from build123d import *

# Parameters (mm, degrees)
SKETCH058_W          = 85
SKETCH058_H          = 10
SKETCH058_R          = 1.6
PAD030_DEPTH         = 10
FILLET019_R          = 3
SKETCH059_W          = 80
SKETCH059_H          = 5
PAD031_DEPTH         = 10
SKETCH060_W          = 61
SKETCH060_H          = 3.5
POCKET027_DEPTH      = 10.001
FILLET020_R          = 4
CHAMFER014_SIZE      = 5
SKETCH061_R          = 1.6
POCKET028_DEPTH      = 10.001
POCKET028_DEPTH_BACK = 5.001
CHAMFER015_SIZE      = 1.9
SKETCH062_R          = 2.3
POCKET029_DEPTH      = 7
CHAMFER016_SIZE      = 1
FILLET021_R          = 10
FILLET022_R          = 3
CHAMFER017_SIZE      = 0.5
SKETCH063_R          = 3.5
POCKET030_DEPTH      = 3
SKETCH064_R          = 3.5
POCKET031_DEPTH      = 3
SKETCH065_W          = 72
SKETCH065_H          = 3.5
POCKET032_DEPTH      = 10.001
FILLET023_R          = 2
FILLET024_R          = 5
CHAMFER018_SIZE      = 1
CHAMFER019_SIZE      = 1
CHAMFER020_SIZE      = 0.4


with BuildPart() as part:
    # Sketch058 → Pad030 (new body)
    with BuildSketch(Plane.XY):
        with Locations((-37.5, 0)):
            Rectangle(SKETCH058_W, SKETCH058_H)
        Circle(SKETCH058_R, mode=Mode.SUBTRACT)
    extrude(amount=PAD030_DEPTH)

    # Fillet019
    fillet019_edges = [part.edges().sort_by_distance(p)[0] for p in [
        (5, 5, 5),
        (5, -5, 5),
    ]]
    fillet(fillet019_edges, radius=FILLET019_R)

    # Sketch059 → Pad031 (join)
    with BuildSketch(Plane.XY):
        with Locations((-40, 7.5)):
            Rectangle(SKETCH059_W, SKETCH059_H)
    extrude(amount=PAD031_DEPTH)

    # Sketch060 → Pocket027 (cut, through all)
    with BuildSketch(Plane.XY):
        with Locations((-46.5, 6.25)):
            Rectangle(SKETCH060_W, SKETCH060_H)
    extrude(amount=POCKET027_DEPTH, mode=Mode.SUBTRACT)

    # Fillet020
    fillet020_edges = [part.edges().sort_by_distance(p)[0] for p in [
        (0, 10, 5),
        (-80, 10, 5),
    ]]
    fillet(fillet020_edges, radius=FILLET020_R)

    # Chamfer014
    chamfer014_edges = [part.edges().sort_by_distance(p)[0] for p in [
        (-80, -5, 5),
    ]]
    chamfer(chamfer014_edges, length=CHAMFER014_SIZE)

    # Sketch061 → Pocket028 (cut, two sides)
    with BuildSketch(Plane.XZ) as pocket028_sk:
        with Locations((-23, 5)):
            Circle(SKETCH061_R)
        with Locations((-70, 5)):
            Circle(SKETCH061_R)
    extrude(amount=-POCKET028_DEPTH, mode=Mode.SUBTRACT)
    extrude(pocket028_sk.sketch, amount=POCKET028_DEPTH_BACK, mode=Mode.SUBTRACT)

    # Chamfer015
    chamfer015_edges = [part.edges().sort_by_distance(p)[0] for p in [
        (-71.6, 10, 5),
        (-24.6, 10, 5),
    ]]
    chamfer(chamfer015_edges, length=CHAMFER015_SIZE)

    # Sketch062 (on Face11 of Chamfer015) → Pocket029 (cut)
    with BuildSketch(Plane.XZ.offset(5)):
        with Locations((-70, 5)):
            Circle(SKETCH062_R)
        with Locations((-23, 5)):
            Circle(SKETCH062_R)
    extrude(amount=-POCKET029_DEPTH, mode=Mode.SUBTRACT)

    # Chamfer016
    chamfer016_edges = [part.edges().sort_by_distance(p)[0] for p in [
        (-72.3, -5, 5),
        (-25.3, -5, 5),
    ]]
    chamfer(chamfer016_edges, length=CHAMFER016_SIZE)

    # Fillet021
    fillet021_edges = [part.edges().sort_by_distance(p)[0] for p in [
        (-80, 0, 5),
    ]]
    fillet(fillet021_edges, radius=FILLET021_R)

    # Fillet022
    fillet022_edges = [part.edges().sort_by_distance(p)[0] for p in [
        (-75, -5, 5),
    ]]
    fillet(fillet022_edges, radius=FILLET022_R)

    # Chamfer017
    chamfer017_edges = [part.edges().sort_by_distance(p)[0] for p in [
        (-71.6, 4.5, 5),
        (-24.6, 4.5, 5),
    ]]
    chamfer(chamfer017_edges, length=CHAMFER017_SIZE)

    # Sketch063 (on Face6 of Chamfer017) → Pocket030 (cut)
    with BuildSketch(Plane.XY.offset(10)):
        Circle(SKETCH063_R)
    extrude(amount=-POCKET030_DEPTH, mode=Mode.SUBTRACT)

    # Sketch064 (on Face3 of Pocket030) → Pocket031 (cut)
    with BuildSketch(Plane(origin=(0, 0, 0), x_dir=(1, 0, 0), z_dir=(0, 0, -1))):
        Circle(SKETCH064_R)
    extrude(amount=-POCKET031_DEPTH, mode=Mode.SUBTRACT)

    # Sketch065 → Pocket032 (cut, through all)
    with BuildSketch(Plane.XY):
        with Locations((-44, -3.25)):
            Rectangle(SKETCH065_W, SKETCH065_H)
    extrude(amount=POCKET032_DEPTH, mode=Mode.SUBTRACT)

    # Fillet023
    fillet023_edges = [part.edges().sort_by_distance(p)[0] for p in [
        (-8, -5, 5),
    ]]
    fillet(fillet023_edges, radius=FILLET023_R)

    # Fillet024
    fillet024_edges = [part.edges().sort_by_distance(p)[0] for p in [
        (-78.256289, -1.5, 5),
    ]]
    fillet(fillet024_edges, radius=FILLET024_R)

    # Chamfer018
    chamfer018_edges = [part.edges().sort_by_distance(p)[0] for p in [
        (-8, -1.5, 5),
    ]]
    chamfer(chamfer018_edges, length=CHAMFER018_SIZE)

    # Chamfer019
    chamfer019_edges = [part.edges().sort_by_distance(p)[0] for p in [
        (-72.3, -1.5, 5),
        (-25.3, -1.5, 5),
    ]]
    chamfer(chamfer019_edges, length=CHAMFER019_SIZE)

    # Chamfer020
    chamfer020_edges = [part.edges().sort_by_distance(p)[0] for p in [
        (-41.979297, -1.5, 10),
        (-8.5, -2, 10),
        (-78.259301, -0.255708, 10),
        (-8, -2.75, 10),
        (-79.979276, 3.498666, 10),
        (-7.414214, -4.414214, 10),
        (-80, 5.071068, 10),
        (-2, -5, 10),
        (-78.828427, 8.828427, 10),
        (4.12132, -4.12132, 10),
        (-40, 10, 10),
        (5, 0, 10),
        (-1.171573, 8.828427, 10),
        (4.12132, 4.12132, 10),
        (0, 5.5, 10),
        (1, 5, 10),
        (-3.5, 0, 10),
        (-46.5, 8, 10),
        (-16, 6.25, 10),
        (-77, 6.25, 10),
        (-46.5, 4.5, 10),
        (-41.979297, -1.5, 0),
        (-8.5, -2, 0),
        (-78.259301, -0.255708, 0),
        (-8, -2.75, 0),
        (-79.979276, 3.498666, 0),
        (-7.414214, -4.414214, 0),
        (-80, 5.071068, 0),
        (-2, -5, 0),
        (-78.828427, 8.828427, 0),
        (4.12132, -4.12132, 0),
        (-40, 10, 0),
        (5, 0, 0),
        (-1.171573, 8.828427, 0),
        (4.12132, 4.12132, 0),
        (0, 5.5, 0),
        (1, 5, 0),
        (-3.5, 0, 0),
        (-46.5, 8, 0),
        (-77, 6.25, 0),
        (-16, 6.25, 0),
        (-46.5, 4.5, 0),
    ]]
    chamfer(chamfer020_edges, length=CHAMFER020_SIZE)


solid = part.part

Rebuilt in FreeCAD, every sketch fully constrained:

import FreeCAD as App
import Part
import Sketcher
from FreeCAD import Vector


def edges_at(feature, points):
    """Names of the edges that pass closest to the given points."""
    edges = feature.Shape.Edges
    near = lambda p: min(range(len(edges)), key=lambda i: edges[i].distToShape(Part.Vertex(*p))[0])
    return sorted({f"Edge{near(p) + 1}" for p in points})


def add_polygon(sketch, points):
    """Adds a closed chain of lines whose ends are joined by coincident constraints."""
    first, n = sketch.GeometryCount, len(points)
    for a, b in zip(points, points[1:] + points[:1]):
        sketch.addGeometry(Part.LineSegment(App.Vector(*a, 0), App.Vector(*b, 0)), False)
    for i in range(n):
        sketch.addConstraint(Sketcher.Constraint("Coincident", first + i, 2, first + (i + 1) % n, 1))

doc = App.newDocument("Part")
body = doc.addObject("PartDesign::Body", "Body")

sketch1 = body.newObject("Sketcher::SketchObject", "Sketch")
sketch1.AttachmentSupport = (doc.getObject("XY_Plane"), [""])
sketch1.MapMode = "FlatFace"
add_polygon(sketch1, [(-80, 5), (-80, -5), (5, -5), (5, 5)])
sketch1.addGeometry(Part.Circle(Vector(0, 0, 0), Vector(0, 0, 1), 1.6), False)
sketch1.addConstraint(Sketcher.Constraint("Vertical", 0))
sketch1.addConstraint(Sketcher.Constraint("Horizontal", 1))
sketch1.addConstraint(Sketcher.Constraint("Vertical", 2))
sketch1.addConstraint(Sketcher.Constraint("Horizontal", 3))
sketch1.addConstraint(Sketcher.Constraint("Coincident", 4, 3, -1, 1))
sketch1.addConstraint(Sketcher.Constraint("Diameter", 4, 3.2))
sketch1.addConstraint(Sketcher.Constraint("DistanceX", 1, 1, 1, 2, 85.0))
sketch1.addConstraint(Sketcher.Constraint("DistanceY", 0, 2, 0, 1, 10.0))
sketch1.addConstraint(Sketcher.Constraint("DistanceX", 0, 2, -1, 1, 80.0))
sketch1.addConstraint(Sketcher.Constraint("DistanceY", 0, 2, -1, 1, 5.0))
pad1 = body.newObject("PartDesign::Pad", "Pad")
pad1.Profile = sketch1
pad1.Length = 10
doc.recompute()

fillet = body.newObject("PartDesign::Fillet", "Fillet")
fillet.Base = (pad1, edges_at(pad1, [(5, 5, 5), (5, -5, 5)]))
fillet.Radius = 3

sketch2 = body.newObject("Sketcher::SketchObject", "Sketch001")
sketch2.AttachmentSupport = (doc.getObject("XY_Plane"), [""])
sketch2.MapMode = "FlatFace"
add_polygon(sketch2, [(-80, 10), (-80, 5), (0, 5), (0, 10)])
sketch2.addConstraint(Sketcher.Constraint("Vertical", 0))
sketch2.addConstraint(Sketcher.Constraint("Horizontal", 1))
sketch2.addConstraint(Sketcher.Constraint("Vertical", 2))
sketch2.addConstraint(Sketcher.Constraint("Horizontal", 3))
sketch2.addConstraint(Sketcher.Constraint("PointOnObject", 1, 2, -2))
sketch2.addConstraint(Sketcher.Constraint("DistanceX", 1, 1, 1, 2, 80.0))
sketch2.addConstraint(Sketcher.Constraint("DistanceY", 0, 2, 0, 1, 5.0))
sketch2.addConstraint(Sketcher.Constraint("DistanceY", -1, 1, 0, 2, 5.0))
pad2 = body.newObject("PartDesign::Pad", "Pad001")
pad2.Profile = sketch2
pad2.Length = 10

sketch3 = body.newObject("Sketcher::SketchObject", "Sketch002")
sketch3.AttachmentSupport = (doc.getObject("XY_Plane"), [""])
sketch3.MapMode = "FlatFace"
add_polygon(sketch3, [(-77, 8), (-77, 4.5), (-16, 4.5), (-16, 8)])
sketch3.addConstraint(Sketcher.Constraint("Vertical", 0))
sketch3.addConstraint(Sketcher.Constraint("Horizontal", 1))
sketch3.addConstraint(Sketcher.Constraint("Vertical", 2))
sketch3.addConstraint(Sketcher.Constraint("Horizontal", 3))
sketch3.addConstraint(Sketcher.Constraint("DistanceX", 1, 1, 1, 2, 61.0))
sketch3.addConstraint(Sketcher.Constraint("DistanceY", 0, 2, 0, 1, 3.5))
sketch3.addConstraint(Sketcher.Constraint("DistanceX", 0, 2, -1, 1, 77.0))
sketch3.addConstraint(Sketcher.Constraint("DistanceY", -1, 1, 2, 2, 8.0))
pocket1 = body.newObject("PartDesign::Pocket", "Pocket")
pocket1.Profile = sketch3
pocket1.Type = "ThroughAll"
pocket1.Reversed = True
doc.recompute()

fillet2 = body.newObject("PartDesign::Fillet", "Fillet001")
fillet2.Base = (pocket1, edges_at(pocket1, [(0, 10, 5), (-80, 10, 5)]))
fillet2.Radius = 4
doc.recompute()

chamfer = body.newObject("PartDesign::Chamfer", "Chamfer")
chamfer.Base = (fillet2, edges_at(fillet2, [(-80, -5, 5)]))
chamfer.Size = 5

sketch4 = body.newObject("Sketcher::SketchObject", "Sketch003")
sketch4.AttachmentSupport = (doc.getObject("XZ_Plane"), [""])
sketch4.MapMode = "FlatFace"
sketch4.addGeometry(Part.Circle(Vector(-23, 5, 0), Vector(0, 0, 1), 1.6), False)
sketch4.addGeometry(Part.Circle(Vector(-70, 5, 0), Vector(0, 0, 1), 1.6), False)
sketch4.addConstraint(Sketcher.Constraint("Equal", 0, 1))
sketch4.addConstraint(Sketcher.Constraint("Horizontal", 0, 3, 1, 3))
sketch4.addConstraint(Sketcher.Constraint("Diameter", 0, 3.2))
sketch4.addConstraint(Sketcher.Constraint("DistanceX", 0, 3, -1, 1, 23.0))
sketch4.addConstraint(Sketcher.Constraint("DistanceY", -1, 1, 0, 3, 5.0))
sketch4.addConstraint(Sketcher.Constraint("DistanceX", 1, 3, -1, 1, 70.0))
pocket2 = body.newObject("PartDesign::Pocket", "Pocket001")
pocket2.Profile = sketch4
pocket2.Type = "ThroughAll"
pocket2.Midplane = True
doc.recompute()

chamfer2 = body.newObject("PartDesign::Chamfer", "Chamfer001")
chamfer2.Base = (pocket2, edges_at(pocket2, [(-71.6, 10, 5), (-24.6, 10, 5)]))
chamfer2.Size = 1.9

sketch5 = body.newObject("Sketcher::SketchObject", "Sketch004")
sketch5.AttachmentSupport = (doc.getObject("XZ_Plane"), [""])
sketch5.MapMode = "FlatFace"
sketch5.AttachmentOffset = App.Placement(Vector(0, 0, 5), App.Rotation())
sketch5.addGeometry(Part.Circle(Vector(-70, 5, 0), Vector(0, 0, 1), 2.3), False)
sketch5.addGeometry(Part.Circle(Vector(-23, 5, 0), Vector(0, 0, 1), 2.3), False)
sketch5.addConstraint(Sketcher.Constraint("Equal", 0, 1))
sketch5.addConstraint(Sketcher.Constraint("Horizontal", 0, 3, 1, 3))
sketch5.addConstraint(Sketcher.Constraint("Diameter", 0, 4.6))
sketch5.addConstraint(Sketcher.Constraint("DistanceX", 0, 3, -1, 1, 70.0))
sketch5.addConstraint(Sketcher.Constraint("DistanceY", -1, 1, 0, 3, 5.0))
sketch5.addConstraint(Sketcher.Constraint("DistanceX", 1, 3, -1, 1, 23.0))
pocket3 = body.newObject("PartDesign::Pocket", "Pocket002")
pocket3.Profile = sketch5
pocket3.Length = 7
doc.recompute()

chamfer3 = body.newObject("PartDesign::Chamfer", "Chamfer002")
chamfer3.Base = (pocket3, edges_at(pocket3, [(-72.3, -5, 5), (-25.3, -5, 5)]))
chamfer3.Size = 1
doc.recompute()

fillet3 = body.newObject("PartDesign::Fillet", "Fillet002")
fillet3.Base = (chamfer3, edges_at(chamfer3, [(-80, 0, 5)]))
fillet3.Radius = 10
doc.recompute()

fillet4 = body.newObject("PartDesign::Fillet", "Fillet003")
fillet4.Base = (fillet3, edges_at(fillet3, [(-75, -5, 5)]))
fillet4.Radius = 3
doc.recompute()

chamfer4 = body.newObject("PartDesign::Chamfer", "Chamfer003")
chamfer4.Base = (fillet4, edges_at(fillet4, [(-71.6, 4.5, 5), (-24.6, 4.5, 5)]))
chamfer4.Size = 0.5

sketch6 = body.newObject("Sketcher::SketchObject", "Sketch005")
sketch6.AttachmentSupport = (doc.getObject("XY_Plane"), [""])
sketch6.MapMode = "FlatFace"
sketch6.AttachmentOffset = App.Placement(Vector(0, 0, 10), App.Rotation())
sketch6.addGeometry(Part.Circle(Vector(0, 0, 0), Vector(0, 0, 1), 3.5), False)
sketch6.addConstraint(Sketcher.Constraint("Coincident", 0, 3, -1, 1))
sketch6.addConstraint(Sketcher.Constraint("Diameter", 0, 7.0))
pocket4 = body.newObject("PartDesign::Pocket", "Pocket003")
pocket4.Profile = sketch6
pocket4.Length = 3

sketch7 = body.newObject("Sketcher::SketchObject", "Sketch006")
sketch7.AttachmentSupport = (doc.getObject("XY_Plane"), [""])
sketch7.MapMode = "FlatFace"
sketch7.addGeometry(Part.Circle(Vector(0, 0, 0), Vector(0, 0, 1), 3.5), False)
sketch7.addConstraint(Sketcher.Constraint("Coincident", 0, 3, -1, 1))
sketch7.addConstraint(Sketcher.Constraint("Diameter", 0, 7.0))
pocket5 = body.newObject("PartDesign::Pocket", "Pocket004")
pocket5.Profile = sketch7
pocket5.Length = 3
pocket5.Reversed = True

sketch8 = body.newObject("Sketcher::SketchObject", "Sketch007")
sketch8.AttachmentSupport = (doc.getObject("XY_Plane"), [""])
sketch8.MapMode = "FlatFace"
add_polygon(sketch8, [(-80, -1.5), (-80, -5), (-8, -5), (-8, -1.5)])
sketch8.addConstraint(Sketcher.Constraint("Vertical", 0))
sketch8.addConstraint(Sketcher.Constraint("Horizontal", 1))
sketch8.addConstraint(Sketcher.Constraint("Vertical", 2))
sketch8.addConstraint(Sketcher.Constraint("Horizontal", 3))
sketch8.addConstraint(Sketcher.Constraint("DistanceX", 1, 1, 1, 2, 72.0))
sketch8.addConstraint(Sketcher.Constraint("DistanceY", 0, 2, 0, 1, 3.5))
sketch8.addConstraint(Sketcher.Constraint("DistanceX", 0, 2, -1, 1, 80.0))
sketch8.addConstraint(Sketcher.Constraint("DistanceY", 0, 2, -1, 1, 5.0))
pocket6 = body.newObject("PartDesign::Pocket", "Pocket005")
pocket6.Profile = sketch8
pocket6.Type = "ThroughAll"
pocket6.Reversed = True
doc.recompute()

fillet5 = body.newObject("PartDesign::Fillet", "Fillet004")
fillet5.Base = (pocket6, edges_at(pocket6, [(-8, -5, 5)]))
fillet5.Radius = 2
doc.recompute()

fillet6 = body.newObject("PartDesign::Fillet", "Fillet005")
fillet6.Base = (fillet5, edges_at(fillet5, [(-78.256, -1.5, 5)]))
fillet6.Radius = 5
doc.recompute()

chamfer5 = body.newObject("PartDesign::Chamfer", "Chamfer004")
chamfer5.Base = (fillet6, edges_at(fillet6, [(-8, -1.5, 5)]))
chamfer5.Size = 1
doc.recompute()

chamfer6 = body.newObject("PartDesign::Chamfer", "Chamfer005")
chamfer6.Base = (chamfer5, edges_at(chamfer5, [(-72.3, -1.5, 5), (-25.3, -1.5, 5)]))
chamfer6.Size = 1
doc.recompute()

chamfer7 = body.newObject("PartDesign::Chamfer", "Chamfer006")
chamfer7.Base = (chamfer6, edges_at(chamfer6, [
    (-41.979, -1.5, 10),
    (-8.5, -2, 10),
    (-78.259, -0.256, 10),
    (-8, -2.75, 10),
    (-79.979, 3.499, 10),
    (-7.414, -4.414, 10),
    (-80, 5.071, 10),
    (-2, -5, 10),
    (-78.828, 8.828, 10),
    (4.121, -4.121, 10),
    (-40, 10, 10),
    (5, 0, 10),
    (-1.172, 8.828, 10),
    (4.121, 4.121, 10),
    (0, 5.5, 10),
    (1, 5, 10),
    (-3.5, 0, 10),
    (-46.5, 8, 10),
    (-16, 6.25, 10),
    (-77, 6.25, 10),
    (-46.5, 4.5, 10),
    (-41.979, -1.5, 0),
    (-8.5, -2, 0),
    (-78.259, -0.256, 0),
    (-8, -2.75, 0),
    (-79.979, 3.499, 0),
    (-7.414, -4.414, 0),
    (-80, 5.071, 0),
    (-2, -5, 0),
    (-78.828, 8.828, 0),
    (4.121, -4.121, 0),
    (-40, 10, 0),
    (5, 0, 0),
    (-1.172, 8.828, 0),
    (4.121, 4.121, 0),
    (0, 5.5, 0),
    (1, 5, 0),
    (-3.5, 0, 0),
    (-46.5, 8, 0),
    (-77, 6.25, 0),
    (-16, 6.25, 0),
    (-46.5, 4.5, 0),
]))
chamfer7.Size = 0.4

doc.recompute()
